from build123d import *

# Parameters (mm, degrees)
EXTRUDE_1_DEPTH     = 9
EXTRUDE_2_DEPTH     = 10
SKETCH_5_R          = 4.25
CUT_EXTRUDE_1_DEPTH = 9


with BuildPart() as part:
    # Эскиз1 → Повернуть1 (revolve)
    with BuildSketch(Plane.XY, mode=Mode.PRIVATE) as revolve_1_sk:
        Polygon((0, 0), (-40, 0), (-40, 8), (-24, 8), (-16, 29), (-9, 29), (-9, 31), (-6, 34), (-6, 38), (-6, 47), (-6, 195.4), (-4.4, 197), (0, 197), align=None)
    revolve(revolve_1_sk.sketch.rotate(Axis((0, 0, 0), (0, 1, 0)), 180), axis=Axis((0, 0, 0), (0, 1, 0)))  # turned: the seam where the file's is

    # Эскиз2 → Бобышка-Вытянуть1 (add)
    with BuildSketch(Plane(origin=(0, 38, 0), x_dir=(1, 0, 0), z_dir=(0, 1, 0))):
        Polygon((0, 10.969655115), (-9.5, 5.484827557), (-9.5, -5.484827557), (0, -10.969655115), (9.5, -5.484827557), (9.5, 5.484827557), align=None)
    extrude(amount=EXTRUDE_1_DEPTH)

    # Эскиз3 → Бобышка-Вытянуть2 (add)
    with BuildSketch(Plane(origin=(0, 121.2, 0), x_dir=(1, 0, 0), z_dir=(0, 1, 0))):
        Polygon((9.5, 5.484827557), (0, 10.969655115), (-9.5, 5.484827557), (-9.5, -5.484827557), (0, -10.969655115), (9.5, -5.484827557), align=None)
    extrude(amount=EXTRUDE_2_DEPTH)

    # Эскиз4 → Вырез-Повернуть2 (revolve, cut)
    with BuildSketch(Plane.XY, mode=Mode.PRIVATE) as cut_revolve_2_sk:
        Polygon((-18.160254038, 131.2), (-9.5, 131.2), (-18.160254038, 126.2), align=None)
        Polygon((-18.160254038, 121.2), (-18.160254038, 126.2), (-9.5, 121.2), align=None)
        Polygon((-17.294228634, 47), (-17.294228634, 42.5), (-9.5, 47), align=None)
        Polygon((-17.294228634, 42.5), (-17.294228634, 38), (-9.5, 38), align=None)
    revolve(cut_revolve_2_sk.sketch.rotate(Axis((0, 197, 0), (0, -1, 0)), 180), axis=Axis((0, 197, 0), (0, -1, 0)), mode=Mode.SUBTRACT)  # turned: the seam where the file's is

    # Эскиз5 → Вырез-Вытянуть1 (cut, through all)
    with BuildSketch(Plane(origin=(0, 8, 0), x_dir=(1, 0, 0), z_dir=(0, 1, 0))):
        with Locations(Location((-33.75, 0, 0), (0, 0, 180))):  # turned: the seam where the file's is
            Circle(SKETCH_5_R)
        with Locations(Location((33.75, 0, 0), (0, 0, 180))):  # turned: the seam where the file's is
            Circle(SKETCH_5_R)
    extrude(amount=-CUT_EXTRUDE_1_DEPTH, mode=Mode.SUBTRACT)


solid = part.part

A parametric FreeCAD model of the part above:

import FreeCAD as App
import Part
import Sketcher

V = App.Vector
Q = App.Units.Quantity

doc = App.newDocument("Part")
body = doc.addObject("PartDesign::Body", "Body")

sketch1 = body.newObject("Sketcher::SketchObject", "Sketch")
sketch1.AttachmentSupport = (doc.getObject("XY_Plane"), [""])
sketch1.MapMode = "FlatFace"
sketch1.addGeometry(Part.LineSegment(V(-40, 0, 0), V(0, 0, 0)), False)
sketch1.addGeometry(Part.LineSegment(V(0, 0, 0), V(0, 197, 0)), False)
sketch1.addGeometry(Part.LineSegment(V(0, 197, 0), V(-4.4, 197, 0)), False)
sketch1.addGeometry(Part.LineSegment(V(-4.4, 197, 0), V(-6, 195.4, 0)), False)
sketch1.addGeometry(Part.LineSegment(V(-6, 195.4, 0), V(-6, 34, 0)), False)
sketch1.addGeometry(Part.LineSegment(V(-6, 34, 0), V(-9, 31, 0)), False)
sketch1.addGeometry(Part.LineSegment(V(-9, 31, 0), V(-9, 29, 0)), False)
sketch1.addGeometry(Part.LineSegment(V(-9, 29, 0), V(-16, 29, 0)), False)
sketch1.addGeometry(Part.LineSegment(V(-16, 29, 0), V(-24, 8, 0)), False)
sketch1.addGeometry(Part.LineSegment(V(-24, 8, 0), V(-40, 8, 0)), False)
sketch1.addGeometry(Part.LineSegment(V(-40, 8, 0), V(-40, 0, 0)), False)
sketch1.addConstraint(Sketcher.Constraint("Coincident", 0, 2, 1, 1))
sketch1.addConstraint(Sketcher.Constraint("Coincident", 1, 2, 2, 1))
sketch1.addConstraint(Sketcher.Constraint("Coincident", 2, 2, 3, 1))
sketch1.addConstraint(Sketcher.Constraint("Coincident", 3, 2, 4, 1))
sketch1.addConstraint(Sketcher.Constraint("Coincident", 4, 2, 5, 1))
sketch1.addConstraint(Sketcher.Constraint("Coincident", 5, 2, 6, 1))
sketch1.addConstraint(Sketcher.Constraint("Coincident", 6, 2, 7, 1))
sketch1.addConstraint(Sketcher.Constraint("Coincident", 7, 2, 8, 1))
sketch1.addConstraint(Sketcher.Constraint("Coincident", 8, 2, 9, 1))
sketch1.addConstraint(Sketcher.Constraint("Coincident", 9, 2, 10, 1))
sketch1.addConstraint(Sketcher.Constraint("Coincident", 10, 2, 0, 1))
sketch1.addConstraint(Sketcher.Constraint("Horizontal", 0))
sketch1.addConstraint(Sketcher.Constraint("Vertical", 1))
sketch1.addConstraint(Sketcher.Constraint("Horizontal", 2))
sketch1.addConstraint(Sketcher.Constraint("Vertical", 4))
sketch1.addConstraint(Sketcher.Constraint("Vertical", 6))
sketch1.addConstraint(Sketcher.Constraint("Horizontal", 7))
sketch1.addConstraint(Sketcher.Constraint("Horizontal", 9))
sketch1.addConstraint(Sketcher.Constraint("Vertical", 10))
sketch1.addConstraint(Sketcher.Constraint("Coincident", 0, 2, -1, 1))
sketch1.addConstraint(Sketcher.Constraint("Parallel", 3, 5))
sketch1.addConstraint(Sketcher.Constraint("DistanceX", 0, 1, 0, 2, Q("40 mm")))
sketch1.addConstraint(Sketcher.Constraint("DistanceX", 7, 2, 7, 1, Q("7 mm")))
sketch1.addConstraint(Sketcher.Constraint("DistanceX", 9, 2, 9, 1, Q("16 mm")))
sketch1.addConstraint(Sketcher.Constraint("DistanceY", 1, 1, 1, 2, Q("197 mm")))
sketch1.addConstraint(Sketcher.Constraint("DistanceY", 6, 2, 6, 1, Q("2 mm")))
sketch1.addConstraint(Sketcher.Constraint("DistanceY", 10, 2, 10, 1, Q("8 mm")))
sketch1.addConstraint(Sketcher.Constraint("Angle", 3, Q("-135 deg")))
sketch1.addConstraint(Sketcher.Constraint("DistanceX", 2, 2, 2, 1, Q("4.4 mm")))
sketch1.addConstraint(Sketcher.Constraint("DistanceY", 4, 2, 4, 1, Q("161.4 mm")))
sketch1.addConstraint(Sketcher.Constraint("DistanceX", 3, 2, -1, 1, Q("6 mm")))
sketch1.addConstraint(Sketcher.Constraint("DistanceX", 5, 2, -1, 1, Q("9 mm")))
revolution = body.newObject("PartDesign::Revolution", "Revolution")
revolution.Profile = sketch1
revolution.ReferenceAxis = (sketch1, ["V_Axis"])
revolution.Angle = 360

sketch2 = body.newObject("Sketcher::SketchObject", "Sketch001")
sketch2.AttachmentSupport = (doc.getObject("XZ_Plane"), [""])
sketch2.MapMode = "FlatFace"
sketch2.AttachmentOffset = App.Placement(V(0, 0, -38), App.Rotation())
sketch2.addGeometry(Part.LineSegment(V(0, -10.969655, 0), V(-9.5, -5.484828, 0)), False)
sketch2.addGeometry(Part.LineSegment(V(-9.5, -5.484828, 0), V(-9.5, 5.484828, 0)), False)
sketch2.addGeometry(Part.LineSegment(V(-9.5, 5.484828, 0), V(0, 10.969655, 0)), False)
sketch2.addGeometry(Part.LineSegment(V(0, 10.969655, 0), V(9.5, 5.484828, 0)), False)
sketch2.addGeometry(Part.LineSegment(V(9.5, 5.484828, 0), V(9.5, -5.484828, 0)), False)
sketch2.addGeometry(Part.LineSegment(V(9.5, -5.484828, 0), V(0, -10.969655, 0)), False)
sketch2.addConstraint(Sketcher.Constraint("Coincident", 0, 2, 1, 1))
sketch2.addConstraint(Sketcher.Constraint("Coincident", 1, 2, 2, 1))
sketch2.addConstraint(Sketcher.Constraint("Coincident", 2, 2, 3, 1))
sketch2.addConstraint(Sketcher.Constraint("Coincident", 3, 2, 4, 1))
sketch2.addConstraint(Sketcher.Constraint("Coincident", 4, 2, 5, 1))
sketch2.addConstraint(Sketcher.Constraint("Coincident", 5, 2, 0, 1))
sketch2.addConstraint(Sketcher.Constraint("Vertical", 1))
sketch2.addConstraint(Sketcher.Constraint("Vertical", 4))
sketch2.addConstraint(Sketcher.Constraint("Symmetric", 0, 2, 3, 2, -1, 1))
sketch2.addConstraint(Sketcher.Constraint("Symmetric", 2, 2, 5, 2, -1, 1))
sketch2.addConstraint(Sketcher.Constraint("PointOnObject", 2, 2, -2))
sketch2.addConstraint(Sketcher.Constraint("Parallel", 2, 5))
sketch2.addConstraint(Sketcher.Constraint("Horizontal", 1, 2, 3, 2))
sketch2.addConstraint(Sketcher.Constraint("Angle", 0, Q("150 deg")))
sketch2.addConstraint(Sketcher.Constraint("DistanceX", 1, 2, 3, 2, Q("19 mm")))
sketch2.addConstraint(Sketcher.Constraint("DistanceY", 1, 1, 1, 2, Q("10.969655 mm")))
pad1 = body.newObject("PartDesign::Pad", "Pad")
pad1.Profile = sketch2
pad1.Length = 9
pad1.Reversed = True

sketch3 = body.newObject("Sketcher::SketchObject", "Sketch002")
sketch3.AttachmentSupport = (doc.getObject("XZ_Plane"), [""])
sketch3.MapMode = "FlatFace"
sketch3.AttachmentOffset = App.Placement(V(0, 0, -121.2), App.Rotation())
sketch3.addGeometry(Part.LineSegment(V(9.5, -5.484828, 0), V(0, -10.969655, 0)), False)
sketch3.addGeometry(Part.LineSegment(V(0, -10.969655, 0), V(-9.5, -5.484828, 0)), False)
sketch3.addGeometry(Part.LineSegment(V(-9.5, -5.484828, 0), V(-9.5, 5.484828, 0)), False)
sketch3.addGeometry(Part.LineSegment(V(-9.5, 5.484828, 0), V(0, 10.969655, 0)), False)
sketch3.addGeometry(Part.LineSegment(V(0, 10.969655, 0), V(9.5, 5.484828, 0)), False)
sketch3.addGeometry(Part.LineSegment(V(9.5, 5.484828, 0), V(9.5, -5.484828, 0)), False)
sketch3.addConstraint(Sketcher.Constraint("Coincident", 0, 2, 1, 1))
sketch3.addConstraint(Sketcher.Constraint("Coincident", 1, 2, 2, 1))
sketch3.addConstraint(Sketcher.Constraint("Coincident", 2, 2, 3, 1))
sketch3.addConstraint(Sketcher.Constraint("Coincident", 3, 2, 4, 1))
sketch3.addConstraint(Sketcher.Constraint("Coincident", 4, 2, 5, 1))
sketch3.addConstraint(Sketcher.Constraint("Coincident", 5, 2, 0, 1))
sketch3.addConstraint(Sketcher.Constraint("Vertical", 2))
sketch3.addConstraint(Sketcher.Constraint("Vertical", 5))
sketch3.addConstraint(Sketcher.Constraint("Symmetric", 0, 2, 3, 2, -1, 1))
sketch3.addConstraint(Sketcher.Constraint("Symmetric", 1, 2, 4, 2, -1, 1))
sketch3.addConstraint(Sketcher.Constraint("PointOnObject", 0, 2, -2))
sketch3.addConstraint(Sketcher.Constraint("Parallel", 0, 3))
sketch3.addConstraint(Sketcher.Constraint("Horizontal", 2, 2, 4, 2))
sketch3.addConstraint(Sketcher.Constraint("Angle", 0, Q("-150 deg")))
sketch3.addConstraint(Sketcher.Constraint("DistanceX", 2, 2, 4, 2, Q("19 mm")))
sketch3.addConstraint(Sketcher.Constraint("DistanceY", 2, 1, 2, 2, Q("10.969655 mm")))
pad2 = body.newObject("PartDesign::Pad", "Pad001")
pad2.Profile = sketch3
pad2.Length = 10
pad2.Reversed = True

sketch4 = body.newObject("Sketcher::SketchObject", "Sketch003")
sketch4.AttachmentSupport = (doc.getObject("XY_Plane"), [""])
sketch4.MapMode = "FlatFace"
sketch4.addGeometry(Part.LineSegment(V(-9.5, 131.2, 0), V(-18.160254, 131.2, 0)), False)
sketch4.addGeometry(Part.LineSegment(V(-18.160254, 131.2, 0), V(-18.160254, 126.2, 0)), False)
sketch4.addGeometry(Part.LineSegment(V(-18.160254, 126.2, 0), V(-9.5, 131.2, 0)), False)
sketch4.addGeometry(Part.LineSegment(V(-18.160254, 126.2, 0), V(-18.160254, 121.2, 0)), False)
sketch4.addGeometry(Part.LineSegment(V(-18.160254, 121.2, 0), V(-9.5, 121.2, 0)), False)
sketch4.addGeometry(Part.LineSegment(V(-9.5, 121.2, 0), V(-18.160254, 126.2, 0)), False)
sketch4.addGeometry(Part.LineSegment(V(-17.294229, 47, 0), V(-17.294229, 42.5, 0)), False)
sketch4.addGeometry(Part.LineSegment(V(-17.294229, 42.5, 0), V(-9.5, 47, 0)), False)
sketch4.addGeometry(Part.LineSegment(V(-9.5, 47, 0), V(-17.294229, 47, 0)), False)
sketch4.addGeometry(Part.LineSegment(V(-17.294229, 42.5, 0), V(-17.294229, 38, 0)), False)
sketch4.addGeometry(Part.LineSegment(V(-17.294229, 38, 0), V(-9.5, 38, 0)), False)
sketch4.addGeometry(Part.LineSegment(V(-9.5, 38, 0), V(-17.294229, 42.5, 0)), False)
sketch4.addConstraint(Sketcher.Constraint("Coincident", 0, 2, 1, 1))
sketch4.addConstraint(Sketcher.Constraint("Coincident", 1, 2, 2, 1))
sketch4.addConstraint(Sketcher.Constraint("Coincident", 2, 2, 0, 1))
sketch4.addConstraint(Sketcher.Constraint("Coincident", 3, 2, 4, 1))
sketch4.addConstraint(Sketcher.Constraint("Coincident", 4, 2, 5, 1))
sketch4.addConstraint(Sketcher.Constraint("Coincident", 5, 2, 3, 1))
sketch4.addConstraint(Sketcher.Constraint("Coincident", 6, 2, 7, 1))
sketch4.addConstraint(Sketcher.Constraint("Coincident", 7, 2, 8, 1))
sketch4.addConstraint(Sketcher.Constraint("Coincident", 8, 2, 6, 1))
sketch4.addConstraint(Sketcher.Constraint("Coincident", 9, 2, 10, 1))
sketch4.addConstraint(Sketcher.Constraint("Coincident", 10, 2, 11, 1))
sketch4.addConstraint(Sketcher.Constraint("Coincident", 11, 2, 9, 1))
sketch4.addConstraint(Sketcher.Constraint("Horizontal", 0))
sketch4.addConstraint(Sketcher.Constraint("Vertical", 1))
sketch4.addConstraint(Sketcher.Constraint("Vertical", 3))
sketch4.addConstraint(Sketcher.Constraint("Horizontal", 4))
sketch4.addConstraint(Sketcher.Constraint("Vertical", 6))
sketch4.addConstraint(Sketcher.Constraint("Horizontal", 8))
sketch4.addConstraint(Sketcher.Constraint("Vertical", 9))
sketch4.addConstraint(Sketcher.Constraint("Horizontal", 10))
sketch4.addConstraint(Sketcher.Constraint("Coincident", 5, 2, 1, 2))
sketch4.addConstraint(Sketcher.Constraint("Coincident", 11, 2, 6, 2))
sketch4.addConstraint(Sketcher.Constraint("Parallel", 2, 7))
sketch4.addConstraint(Sketcher.Constraint("Parallel", 5, 11))
sketch4.addConstraint(Sketcher.Constraint("Vertical", 2, 2, 4, 2))
sketch4.addConstraint(Sketcher.Constraint("Vertical", 4, 2, 7, 2))
sketch4.addConstraint(Sketcher.Constraint("Vertical", 7, 2, 10, 2))
sketch4.addConstraint(Sketcher.Constraint("Equal", 1, 3))
sketch4.addConstraint(Sketcher.Constraint("DistanceY", 1, 2, 1, 1, Q("5 mm")))
sketch4.addConstraint(Sketcher.Constraint("Angle", 2, Q("30 deg")))
sketch4.addConstraint(Sketcher.Constraint("Distance", 7, Q("9 mm")))
sketch4.addConstraint(Sketcher.Constraint("DistanceY", -1, 1, 7, 2, Q("47 mm")))
sketch4.addConstraint(Sketcher.Constraint("DistanceY", -1, 1, 0, 2, Q("131.2 mm")))
sketch4.addConstraint(Sketcher.Constraint("DistanceX", 2, 2, -1, 1, Q("9.5 mm")))
groove = body.newObject("PartDesign::Groove", "Groove")
groove.Profile = sketch4
groove.ReferenceAxis = (sketch4, ["V_Axis"])
groove.Angle = 360

sketch5 = body.newObject("Sketcher::SketchObject", "Sketch004")
sketch5.AttachmentSupport = (doc.getObject("XZ_Plane"), [""])
sketch5.MapMode = "FlatFace"
sketch5.AttachmentOffset = App.Placement(V(0, 0, -8), App.Rotation())
sketch5.addGeometry(Part.Circle(V(-33.75, 0, 0), V(0, 0, 1), 4.25), False)
sketch5.addGeometry(Part.Circle(V(33.75, 0, 0), V(0, 0, 1), 4.25), False)
sketch5.addConstraint(Sketcher.Constraint("Equal", 0, 1))
sketch5.addConstraint(Sketcher.Constraint("Symmetric", 0, 3, 1, 3, -1, 1))
sketch5.addConstraint(Sketcher.Constraint("PointOnObject", 0, 3, -1))
sketch5.addConstraint(Sketcher.Constraint("Diameter", 0, Q("8.5 mm")))
sketch5.addConstraint(Sketcher.Constraint("DistanceX", 0, 3, 1, 3, Q("67.5 mm")))
pocket1 = body.newObject("PartDesign::Pocket", "Pocket")
pocket1.Profile = sketch5
pocket1.Type = "ThroughAll"
pocket1.Reversed = True

doc.recompute()
